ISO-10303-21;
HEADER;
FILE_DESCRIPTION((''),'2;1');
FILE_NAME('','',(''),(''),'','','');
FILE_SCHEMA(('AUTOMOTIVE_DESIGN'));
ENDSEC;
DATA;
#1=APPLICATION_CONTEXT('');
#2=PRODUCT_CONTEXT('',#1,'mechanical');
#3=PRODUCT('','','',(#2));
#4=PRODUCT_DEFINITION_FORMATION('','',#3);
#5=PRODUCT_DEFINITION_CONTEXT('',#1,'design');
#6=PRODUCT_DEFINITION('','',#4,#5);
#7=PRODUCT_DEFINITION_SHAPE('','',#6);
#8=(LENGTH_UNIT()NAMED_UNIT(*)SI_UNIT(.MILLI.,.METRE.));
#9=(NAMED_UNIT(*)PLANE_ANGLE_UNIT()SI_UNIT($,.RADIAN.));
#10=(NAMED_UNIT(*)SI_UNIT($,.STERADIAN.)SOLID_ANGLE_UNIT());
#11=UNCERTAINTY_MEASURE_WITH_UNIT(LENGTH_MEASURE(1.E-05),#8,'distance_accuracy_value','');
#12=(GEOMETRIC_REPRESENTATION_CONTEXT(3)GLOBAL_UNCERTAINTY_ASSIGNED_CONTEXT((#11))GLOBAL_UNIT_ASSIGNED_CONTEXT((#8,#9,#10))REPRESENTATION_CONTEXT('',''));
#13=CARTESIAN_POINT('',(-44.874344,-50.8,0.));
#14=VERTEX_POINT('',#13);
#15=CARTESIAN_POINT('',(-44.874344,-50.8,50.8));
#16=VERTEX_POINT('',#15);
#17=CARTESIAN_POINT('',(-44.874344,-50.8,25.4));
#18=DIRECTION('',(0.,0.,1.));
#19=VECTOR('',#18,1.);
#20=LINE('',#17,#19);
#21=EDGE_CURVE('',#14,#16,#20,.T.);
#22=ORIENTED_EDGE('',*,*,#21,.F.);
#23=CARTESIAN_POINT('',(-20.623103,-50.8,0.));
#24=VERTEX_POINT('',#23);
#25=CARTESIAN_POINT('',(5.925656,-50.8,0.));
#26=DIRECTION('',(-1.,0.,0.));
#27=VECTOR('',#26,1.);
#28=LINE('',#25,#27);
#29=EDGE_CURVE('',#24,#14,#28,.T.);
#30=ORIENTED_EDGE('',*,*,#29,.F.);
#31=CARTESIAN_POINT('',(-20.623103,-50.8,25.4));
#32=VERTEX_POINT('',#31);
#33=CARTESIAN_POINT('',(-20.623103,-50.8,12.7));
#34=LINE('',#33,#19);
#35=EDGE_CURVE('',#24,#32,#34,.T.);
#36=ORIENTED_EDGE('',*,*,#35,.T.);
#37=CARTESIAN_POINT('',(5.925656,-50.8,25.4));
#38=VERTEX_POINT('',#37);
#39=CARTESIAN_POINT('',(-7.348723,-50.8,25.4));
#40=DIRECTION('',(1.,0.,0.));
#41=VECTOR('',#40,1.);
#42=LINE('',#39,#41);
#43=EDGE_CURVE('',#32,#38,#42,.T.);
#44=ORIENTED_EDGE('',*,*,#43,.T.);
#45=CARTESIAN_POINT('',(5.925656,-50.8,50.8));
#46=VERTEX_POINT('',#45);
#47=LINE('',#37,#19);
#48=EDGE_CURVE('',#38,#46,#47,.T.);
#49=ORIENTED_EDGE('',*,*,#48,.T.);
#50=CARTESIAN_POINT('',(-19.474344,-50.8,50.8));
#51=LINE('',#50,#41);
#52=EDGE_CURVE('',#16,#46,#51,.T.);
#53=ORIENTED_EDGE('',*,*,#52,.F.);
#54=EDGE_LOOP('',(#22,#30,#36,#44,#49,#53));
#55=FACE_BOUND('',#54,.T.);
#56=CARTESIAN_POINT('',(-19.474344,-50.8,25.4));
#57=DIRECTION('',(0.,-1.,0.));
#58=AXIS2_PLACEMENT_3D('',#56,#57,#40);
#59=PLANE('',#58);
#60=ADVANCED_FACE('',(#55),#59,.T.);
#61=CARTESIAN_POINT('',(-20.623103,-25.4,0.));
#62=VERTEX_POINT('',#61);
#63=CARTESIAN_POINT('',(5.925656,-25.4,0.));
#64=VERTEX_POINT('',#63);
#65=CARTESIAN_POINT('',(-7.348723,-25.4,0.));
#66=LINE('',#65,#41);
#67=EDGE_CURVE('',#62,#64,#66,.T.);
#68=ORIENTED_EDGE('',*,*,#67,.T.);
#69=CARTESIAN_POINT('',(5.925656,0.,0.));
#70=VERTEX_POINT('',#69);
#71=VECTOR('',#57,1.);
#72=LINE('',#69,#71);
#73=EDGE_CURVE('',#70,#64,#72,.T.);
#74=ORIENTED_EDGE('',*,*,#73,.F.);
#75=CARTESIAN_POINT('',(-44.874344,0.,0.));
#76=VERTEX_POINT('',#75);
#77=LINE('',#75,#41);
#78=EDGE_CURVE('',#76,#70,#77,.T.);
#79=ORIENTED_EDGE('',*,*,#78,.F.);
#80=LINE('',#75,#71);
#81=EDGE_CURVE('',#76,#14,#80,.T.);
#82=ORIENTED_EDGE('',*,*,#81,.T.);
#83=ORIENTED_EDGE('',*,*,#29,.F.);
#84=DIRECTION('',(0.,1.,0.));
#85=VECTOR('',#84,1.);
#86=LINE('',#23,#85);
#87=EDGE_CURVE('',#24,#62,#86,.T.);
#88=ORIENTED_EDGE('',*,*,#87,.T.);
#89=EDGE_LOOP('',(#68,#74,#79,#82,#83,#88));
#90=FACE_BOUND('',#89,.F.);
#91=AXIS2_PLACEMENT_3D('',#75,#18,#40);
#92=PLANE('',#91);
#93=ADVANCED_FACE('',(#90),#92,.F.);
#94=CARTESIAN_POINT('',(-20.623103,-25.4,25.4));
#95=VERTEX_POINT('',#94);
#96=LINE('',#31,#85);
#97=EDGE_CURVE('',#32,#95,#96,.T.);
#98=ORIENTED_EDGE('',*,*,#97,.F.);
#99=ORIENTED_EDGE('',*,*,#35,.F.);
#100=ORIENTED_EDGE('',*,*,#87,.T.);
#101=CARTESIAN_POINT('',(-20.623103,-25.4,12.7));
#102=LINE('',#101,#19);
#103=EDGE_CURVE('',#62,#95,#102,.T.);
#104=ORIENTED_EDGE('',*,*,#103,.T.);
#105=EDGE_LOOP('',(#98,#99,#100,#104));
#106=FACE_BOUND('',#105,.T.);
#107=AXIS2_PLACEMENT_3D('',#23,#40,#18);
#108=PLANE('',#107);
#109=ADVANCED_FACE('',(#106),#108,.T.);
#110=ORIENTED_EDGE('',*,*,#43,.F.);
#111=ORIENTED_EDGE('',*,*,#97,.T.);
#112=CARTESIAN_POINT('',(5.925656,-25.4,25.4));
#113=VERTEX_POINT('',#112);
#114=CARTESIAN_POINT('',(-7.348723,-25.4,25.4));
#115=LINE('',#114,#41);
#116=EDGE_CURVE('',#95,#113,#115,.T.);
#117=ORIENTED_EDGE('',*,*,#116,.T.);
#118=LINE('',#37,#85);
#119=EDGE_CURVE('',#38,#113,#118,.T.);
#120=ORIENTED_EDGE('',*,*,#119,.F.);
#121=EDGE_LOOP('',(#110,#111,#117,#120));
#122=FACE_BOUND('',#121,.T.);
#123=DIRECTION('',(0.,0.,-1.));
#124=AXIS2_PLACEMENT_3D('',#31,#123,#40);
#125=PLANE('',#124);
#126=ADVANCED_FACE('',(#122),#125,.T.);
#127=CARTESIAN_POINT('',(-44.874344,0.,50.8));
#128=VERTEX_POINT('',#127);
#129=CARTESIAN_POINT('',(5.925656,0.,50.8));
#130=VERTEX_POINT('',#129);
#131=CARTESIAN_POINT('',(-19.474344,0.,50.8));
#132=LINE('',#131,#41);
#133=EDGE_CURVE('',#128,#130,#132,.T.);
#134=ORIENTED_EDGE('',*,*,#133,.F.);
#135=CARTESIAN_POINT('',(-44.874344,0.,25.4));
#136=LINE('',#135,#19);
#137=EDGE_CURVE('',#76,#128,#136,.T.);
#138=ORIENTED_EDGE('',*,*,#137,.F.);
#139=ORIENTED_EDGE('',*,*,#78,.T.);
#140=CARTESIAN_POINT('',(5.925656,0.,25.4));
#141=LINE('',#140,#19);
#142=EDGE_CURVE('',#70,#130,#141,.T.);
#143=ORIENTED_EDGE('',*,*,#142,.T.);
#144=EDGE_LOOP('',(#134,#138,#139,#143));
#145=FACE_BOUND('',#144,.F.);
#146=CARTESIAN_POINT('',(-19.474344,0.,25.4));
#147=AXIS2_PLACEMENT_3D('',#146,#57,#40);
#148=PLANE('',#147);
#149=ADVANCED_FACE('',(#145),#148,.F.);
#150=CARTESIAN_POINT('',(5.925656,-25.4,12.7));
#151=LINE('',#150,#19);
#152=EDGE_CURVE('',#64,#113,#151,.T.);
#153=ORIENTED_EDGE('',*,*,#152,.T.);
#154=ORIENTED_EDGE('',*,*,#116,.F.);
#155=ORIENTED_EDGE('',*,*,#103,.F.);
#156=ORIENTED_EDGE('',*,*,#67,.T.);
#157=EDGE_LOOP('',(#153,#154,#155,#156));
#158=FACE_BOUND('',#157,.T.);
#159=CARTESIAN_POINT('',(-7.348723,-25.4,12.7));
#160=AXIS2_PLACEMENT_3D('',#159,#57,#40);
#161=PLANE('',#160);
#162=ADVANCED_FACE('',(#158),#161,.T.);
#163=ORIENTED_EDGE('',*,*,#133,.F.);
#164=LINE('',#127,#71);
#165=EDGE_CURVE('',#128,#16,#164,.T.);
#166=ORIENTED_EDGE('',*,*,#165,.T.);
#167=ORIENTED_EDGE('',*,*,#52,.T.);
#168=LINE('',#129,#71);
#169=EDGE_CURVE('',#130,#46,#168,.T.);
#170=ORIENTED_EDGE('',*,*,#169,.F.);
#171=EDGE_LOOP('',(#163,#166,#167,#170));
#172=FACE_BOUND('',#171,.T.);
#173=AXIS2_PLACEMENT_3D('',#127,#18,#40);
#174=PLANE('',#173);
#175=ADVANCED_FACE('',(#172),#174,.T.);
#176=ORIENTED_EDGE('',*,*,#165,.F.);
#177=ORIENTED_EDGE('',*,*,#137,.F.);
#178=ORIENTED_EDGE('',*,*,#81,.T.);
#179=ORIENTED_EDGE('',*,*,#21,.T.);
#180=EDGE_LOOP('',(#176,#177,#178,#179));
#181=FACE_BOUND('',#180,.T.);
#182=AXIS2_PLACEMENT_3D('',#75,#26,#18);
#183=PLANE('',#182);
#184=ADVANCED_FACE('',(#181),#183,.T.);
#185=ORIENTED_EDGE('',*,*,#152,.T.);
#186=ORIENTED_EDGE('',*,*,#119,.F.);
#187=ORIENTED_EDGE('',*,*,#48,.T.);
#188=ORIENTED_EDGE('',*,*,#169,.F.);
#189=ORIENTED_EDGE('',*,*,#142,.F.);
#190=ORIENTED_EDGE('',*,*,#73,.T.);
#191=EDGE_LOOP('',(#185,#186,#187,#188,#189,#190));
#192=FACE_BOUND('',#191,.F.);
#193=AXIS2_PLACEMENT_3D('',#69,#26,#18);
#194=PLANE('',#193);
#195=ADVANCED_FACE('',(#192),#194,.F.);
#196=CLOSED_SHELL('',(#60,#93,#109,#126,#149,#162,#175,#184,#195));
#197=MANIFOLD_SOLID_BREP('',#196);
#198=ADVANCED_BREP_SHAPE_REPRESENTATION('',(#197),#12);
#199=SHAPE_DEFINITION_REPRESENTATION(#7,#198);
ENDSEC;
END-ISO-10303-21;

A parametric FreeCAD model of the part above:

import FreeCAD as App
import Part
import Sketcher
Q = App.Units.Quantity

doc = App.newDocument("Part")
body = doc.addObject("PartDesign::Body", "Body")

sketch1 = body.newObject("Sketcher::SketchObject", "Sketch")
sketch1.AttachmentSupport = (doc.getObject("XZ_Plane"), [""])
sketch1.MapMode = "FlatFace"
sketch1.addGeometry(Part.LineSegment(App.Vector(-45, 51, 0), App.Vector(-45, 0, 0)), False)
sketch1.addGeometry(Part.LineSegment(App.Vector(-45, 0, 0), App.Vector(6, 0, 0)), False)
sketch1.addGeometry(Part.LineSegment(App.Vector(6, 0, 0), App.Vector(6, 51, 0)), False)
sketch1.addGeometry(Part.LineSegment(App.Vector(6, 51, 0), App.Vector(-45, 51, 0)), False)
sketch1.addConstraint(Sketcher.Constraint("Coincident", 0, 2, 1, 1))
sketch1.addConstraint(Sketcher.Constraint("Coincident", 1, 2, 2, 1))
sketch1.addConstraint(Sketcher.Constraint("Coincident", 2, 2, 3, 1))
sketch1.addConstraint(Sketcher.Constraint("Coincident", 3, 2, 0, 1))
sketch1.addConstraint(Sketcher.Constraint("Vertical", 0))
sketch1.addConstraint(Sketcher.Constraint("Horizontal", 1))
sketch1.addConstraint(Sketcher.Constraint("Vertical", 2))
sketch1.addConstraint(Sketcher.Constraint("Horizontal", 3))
sketch1.addConstraint(Sketcher.Constraint("PointOnObject", 0, 2, -1))
sketch1.addConstraint(Sketcher.Constraint("Equal", 3, 0))
sketch1.addConstraint(Sketcher.Constraint("DistanceX", 1, 1, 1, 2, Q("2 in")))
sketch1.addConstraint(Sketcher.Constraint("DistanceX", 0, 2, -1, 1, Q("44.874344 mm")))
pad1 = body.newObject("PartDesign::Pad", "Pad")
pad1.Profile = sketch1
pad1.Length = Q("2 in")

sketch2 = body.newObject("Sketcher::SketchObject", "Sketch001")
sketch2.AttachmentSupport = (doc.getObject("XY_Plane"), [""])
sketch2.MapMode = "FlatFace"
sketch2.addGeometry(Part.LineSegment(App.Vector(-45, 0, 0), App.Vector(-45, -51, 0)), False)
sketch2.addGeometry(Part.LineSegment(App.Vector(-45, -51, 0), App.Vector(5, -51, 0)), False)
sketch2.addGeometry(Part.LineSegment(App.Vector(5, -51, 0), App.Vector(5, -25, 0)), False)
sketch2.addGeometry(Part.LineSegment(App.Vector(5, -25, 0), App.Vector(-20, -25, 0)), False)
sketch2.addGeometry(Part.LineSegment(App.Vector(-20, -25, 0), App.Vector(-20, 0, 0)), False)
sketch2.addGeometry(Part.LineSegment(App.Vector(-20, 0, 0), App.Vector(-45, 0, 0)), False)
sketch2.addConstraint(Sketcher.Constraint("Coincident", 0, 2, 1, 1))
sketch2.addConstraint(Sketcher.Constraint("Coincident", 1, 2, 2, 1))
sketch2.addConstraint(Sketcher.Constraint("Coincident", 2, 2, 3, 1))
sketch2.addConstraint(Sketcher.Constraint("Coincident", 3, 2, 4, 1))
sketch2.addConstraint(Sketcher.Constraint("Coincident", 4, 2, 5, 1))
sketch2.addConstraint(Sketcher.Constraint("Coincident", 5, 2, 0, 1))
sketch2.addConstraint(Sketcher.Constraint("Vertical", 0))
sketch2.addConstraint(Sketcher.Constraint("Horizontal", 1))
sketch2.addConstraint(Sketcher.Constraint("Vertical", 2))
sketch2.addConstraint(Sketcher.Constraint("Horizontal", 3))
sketch2.addConstraint(Sketcher.Constraint("Vertical", 4))
sketch2.addConstraint(Sketcher.Constraint("Horizontal", 5))
sketch2.addConstraint(Sketcher.Constraint("PointOnObject", 4, 2, -1))
sketch2.addConstraint(Sketcher.Constraint("Equal", 3, 5))
sketch2.addConstraint(Sketcher.Constraint("Equal", 1, 0))
sketch2.addConstraint(Sketcher.Constraint("Equal", 5, 2))
sketch2.addConstraint(Sketcher.Constraint("DistanceX", 1, 1, 1, 2, Q("2 in")))
sketch2.addConstraint(Sketcher.Constraint("DistanceX", 0, 2, -1, 1, Q("45.447208 mm")))
pocket1 = body.newObject("PartDesign::Pocket", "Pocket")
pocket1.Profile = sketch2
pocket1.Length = Q("2 in")

sketch3 = body.newObject("Sketcher::SketchObject", "Sketch002")
sketch3.AttachmentSupport = (doc.getObject("XY_Plane"), [""])
sketch3.MapMode = "FlatFace"
sketch3.addGeometry(Part.LineSegment(App.Vector(-25, -4, 0), App.Vector(-25, -30, 0)), False)
sketch3.addGeometry(Part.LineSegment(App.Vector(-25, -30, 0), App.Vector(0, -30, 0)), False)
sketch3.addGeometry(Part.LineSegment(App.Vector(0, -30, 0), App.Vector(0, -4, 0)), False)
sketch3.addGeometry(Part.LineSegment(App.Vector(0, -4, 0), App.Vector(-25, -4, 0)), False)
sketch3.addConstraint(Sketcher.Constraint("Coincident", 0, 2, 1, 1))
sketch3.addConstraint(Sketcher.Constraint("Coincident", 1, 2, 2, 1))
sketch3.addConstraint(Sketcher.Constraint("Coincident", 2, 2, 3, 1))
sketch3.addConstraint(Sketcher.Constraint("Coincident", 3, 2, 0, 1))
sketch3.addConstraint(Sketcher.Constraint("Vertical", 0))
sketch3.addConstraint(Sketcher.Constraint("Horizontal", 1))
sketch3.addConstraint(Sketcher.Constraint("Vertical", 2))
sketch3.addConstraint(Sketcher.Constraint("Horizontal", 3))
sketch3.addConstraint(Sketcher.Constraint("PointOnObject", 1, 2, -2))
sketch3.addConstraint(Sketcher.Constraint("Equal", 3, 0))
sketch3.addConstraint(Sketcher.Constraint("DistanceX", 1, 1, 1, 2, Q("1 in")))
sketch3.addConstraint(Sketcher.Constraint("DistanceY", 0, 2, -1, 1, Q("29.788928 mm")))
pocket2 = body.newObject("PartDesign::Pocket", "Pocket001")
pocket2.Profile = sketch3
pocket2.Length = Q("4 in")

sketch4 = body.newObject("Sketcher::SketchObject", "Sketch003")
sketch4.AttachmentSupport = (doc.getObject("XZ_Plane"), [""])
sketch4.MapMode = "FlatFace"
sketch4.AttachmentOffset = App.Placement(App.Vector(0, 0, 2 * 25.4), App.Rotation())
sketch4.addGeometry(Part.LineSegment(App.Vector(-21, 25, 0), App.Vector(-21, 0, 0)), False)
sketch4.addGeometry(Part.LineSegment(App.Vector(-21, 0, 0), App.Vector(6, 0, 0)), False)
sketch4.addGeometry(Part.LineSegment(App.Vector(6, 0, 0), App.Vector(6, 25, 0)), False)
sketch4.addGeometry(Part.LineSegment(App.Vector(6, 25, 0), App.Vector(-21, 25, 0)), False)
sketch4.addConstraint(Sketcher.Constraint("Coincident", 0, 2, 1, 1))
sketch4.addConstraint(Sketcher.Constraint("Coincident", 1, 2, 2, 1))
sketch4.addConstraint(Sketcher.Constraint("Coincident", 2, 2, 3, 1))
sketch4.addConstraint(Sketcher.Constraint("Coincident", 3, 2, 0, 1))
sketch4.addConstraint(Sketcher.Constraint("Vertical", 0))
sketch4.addConstraint(Sketcher.Constraint("Horizontal", 1))
sketch4.addConstraint(Sketcher.Constraint("Vertical", 2))
sketch4.addConstraint(Sketcher.Constraint("Horizontal", 3))
sketch4.addConstraint(Sketcher.Constraint("PointOnObject", 0, 2, -1))
sketch4.addConstraint(Sketcher.Constraint("DistanceY", 0, 2, 0, 1, Q("1 in")))
sketch4.addConstraint(Sketcher.Constraint("DistanceX", 1, 1, 1, 2, Q("26.548759 mm")))
sketch4.addConstraint(Sketcher.Constraint("DistanceX", 0, 2, -1, 1, Q("20.623103 mm")))
pocket3 = body.newObject("PartDesign::Pocket", "Pocket002")
pocket3.Profile = sketch4
pocket3.Length = Q("1 in")

doc.recompute()
